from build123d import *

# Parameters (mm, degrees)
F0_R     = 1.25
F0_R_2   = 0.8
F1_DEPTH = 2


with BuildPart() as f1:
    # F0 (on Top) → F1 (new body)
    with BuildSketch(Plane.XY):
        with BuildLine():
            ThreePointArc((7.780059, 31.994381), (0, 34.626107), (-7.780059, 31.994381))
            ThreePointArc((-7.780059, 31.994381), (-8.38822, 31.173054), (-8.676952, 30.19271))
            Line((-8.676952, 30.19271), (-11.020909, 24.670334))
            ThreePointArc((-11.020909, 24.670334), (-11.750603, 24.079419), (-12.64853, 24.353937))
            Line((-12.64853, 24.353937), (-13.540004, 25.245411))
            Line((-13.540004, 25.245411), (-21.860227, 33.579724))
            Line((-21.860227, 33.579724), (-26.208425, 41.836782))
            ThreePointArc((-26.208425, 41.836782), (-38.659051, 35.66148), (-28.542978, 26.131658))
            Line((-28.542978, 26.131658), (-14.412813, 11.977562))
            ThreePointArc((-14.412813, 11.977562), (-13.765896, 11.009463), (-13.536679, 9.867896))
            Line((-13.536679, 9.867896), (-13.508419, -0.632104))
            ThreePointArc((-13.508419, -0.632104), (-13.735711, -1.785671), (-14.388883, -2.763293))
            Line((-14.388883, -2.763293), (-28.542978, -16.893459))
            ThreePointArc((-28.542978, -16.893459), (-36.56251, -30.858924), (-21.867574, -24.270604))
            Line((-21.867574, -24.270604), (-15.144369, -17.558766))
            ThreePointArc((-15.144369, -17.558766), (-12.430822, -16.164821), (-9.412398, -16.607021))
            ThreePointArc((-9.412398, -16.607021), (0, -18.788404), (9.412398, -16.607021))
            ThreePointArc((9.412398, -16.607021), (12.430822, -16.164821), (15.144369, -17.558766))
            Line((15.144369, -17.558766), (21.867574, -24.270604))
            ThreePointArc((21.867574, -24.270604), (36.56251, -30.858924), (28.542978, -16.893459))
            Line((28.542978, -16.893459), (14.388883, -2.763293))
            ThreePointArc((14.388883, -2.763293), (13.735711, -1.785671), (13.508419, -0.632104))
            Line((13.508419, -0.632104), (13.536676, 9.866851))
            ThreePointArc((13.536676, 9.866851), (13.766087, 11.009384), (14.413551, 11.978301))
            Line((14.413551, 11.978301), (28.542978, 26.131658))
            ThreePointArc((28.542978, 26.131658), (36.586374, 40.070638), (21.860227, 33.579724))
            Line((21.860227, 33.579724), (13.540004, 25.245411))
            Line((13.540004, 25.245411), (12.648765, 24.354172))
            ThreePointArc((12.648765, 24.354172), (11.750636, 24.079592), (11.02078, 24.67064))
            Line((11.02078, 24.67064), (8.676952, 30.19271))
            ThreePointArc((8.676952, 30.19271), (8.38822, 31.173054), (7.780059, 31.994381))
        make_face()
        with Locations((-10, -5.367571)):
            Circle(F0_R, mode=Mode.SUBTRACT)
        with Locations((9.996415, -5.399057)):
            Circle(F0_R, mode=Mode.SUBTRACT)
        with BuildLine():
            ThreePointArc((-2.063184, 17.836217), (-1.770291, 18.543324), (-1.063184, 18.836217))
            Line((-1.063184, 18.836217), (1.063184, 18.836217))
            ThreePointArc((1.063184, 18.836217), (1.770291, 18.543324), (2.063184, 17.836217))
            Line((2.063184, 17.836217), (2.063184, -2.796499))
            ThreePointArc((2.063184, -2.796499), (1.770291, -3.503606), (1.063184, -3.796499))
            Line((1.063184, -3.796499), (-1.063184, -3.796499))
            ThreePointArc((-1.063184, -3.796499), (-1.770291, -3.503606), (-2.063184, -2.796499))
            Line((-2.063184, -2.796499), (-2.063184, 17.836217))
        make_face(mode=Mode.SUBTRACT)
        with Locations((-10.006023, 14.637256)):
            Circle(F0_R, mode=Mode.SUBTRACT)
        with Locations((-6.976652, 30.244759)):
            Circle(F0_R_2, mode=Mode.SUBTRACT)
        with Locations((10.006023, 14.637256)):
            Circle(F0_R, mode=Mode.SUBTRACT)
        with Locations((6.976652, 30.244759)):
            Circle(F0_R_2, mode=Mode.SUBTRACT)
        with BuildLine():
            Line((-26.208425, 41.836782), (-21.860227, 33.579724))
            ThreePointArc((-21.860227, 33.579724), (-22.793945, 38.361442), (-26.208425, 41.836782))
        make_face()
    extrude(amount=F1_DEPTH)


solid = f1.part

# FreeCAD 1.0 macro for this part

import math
import FreeCAD as App
import Part
import Sketcher

V = App.Vector
Q = App.Units.Quantity

doc = App.newDocument("Part")
body = doc.addObject("PartDesign::Body", "Body")

# Sketch on XY plane
sketch1 = doc.addObject("Sketcher::SketchObject", "Sketch")
body.addObject(sketch1)
sketch1.AttachmentSupport = (doc.XY_Plane, [""])
sketch1.MapMode = "FlatFace"
sketch1.addGeometry(Part.ArcOfCircle(Part.Circle(V(0, 21.8, 0), V(0, 0, 1), 12.8), math.radians(53), math.radians(127)), False)
sketch1.addGeometry(Part.ArcOfCircle(Part.Circle(V(-5.8, 29.9, 0), V(0, 0, 1), 2.9), math.radians(133), math.radians(174)), False)
sketch1.addGeometry(Part.LineSegment(V(-8.7, 30.2, 0), V(-11, 24.7, 0)), False)
sketch1.addGeometry(Part.ArcOfCircle(Part.Circle(V(-11.9, 25.1, 0), V(0, 0, 1), 1), math.radians(-135), math.radians(-23)), False)
sketch1.addGeometry(Part.LineSegment(V(-12.6, 24.4, 0), V(-13.5, 25.2, 0)), False)
sketch1.addGeometry(Part.LineSegment(V(-13.5, 25.2, 0), V(-21.9, 33.6, 0)), False)
sketch1.addGeometry(Part.ArcOfCircle(Part.Circle(V(-30.3, 34.4, 0), V(0, 0, 1), 8.5), math.radians(-6), math.radians(61)), False)
sketch1.addGeometry(Part.ArcOfCircle(Part.Circle(V(-30.3, 34.4, 0), V(0, 0, 1), 8.5), math.radians(61), math.radians(282)), False)
sketch1.addGeometry(Part.LineSegment(V(-28.5, 26.1, 0), V(-14.4, 12, 0)), False)
sketch1.addGeometry(Part.ArcOfCircle(Part.Circle(V(-16.5, 9.9, 0), V(0, 0, 1), 3), math.radians(0), math.radians(45)), False)
sketch1.addGeometry(Part.LineSegment(V(-13.5, 9.9, 0), V(-13.5, -0.6, 0)), False)
sketch1.addGeometry(Part.ArcOfCircle(Part.Circle(V(-16.5, -0.6, 0), V(0, 0, 1), 3), math.radians(-45), math.radians(0)), False)
sketch1.addGeometry(Part.LineSegment(V(-14.4, -2.8, 0), V(-28.5, -16.9, 0)), False)
sketch1.addGeometry(Part.ArcOfCircle(Part.Circle(V(-30.3, -25.2, 0), V(0, 0, 1), 8.5), math.radians(78), math.radians(366)), False)
sketch1.addGeometry(Part.LineSegment(V(-21.9, -24.3, 0), V(-15.1, -17.6, 0)), False)
sketch1.addGeometry(Part.ArcOfCircle(Part.Circle(V(-11.6, -21.1, 0), V(0, 0, 1), 5), math.radians(64), math.radians(135)), False)
sketch1.addGeometry(Part.ArcOfCircle(Part.Circle(V(0, 2.6, 0), V(0, 0, 1), 21.4), math.radians(-116), math.radians(-64)), False)
sketch1.addGeometry(Part.ArcOfCircle(Part.Circle(V(11.6, -21.1, 0), V(0, 0, 1), 5), math.radians(45), math.radians(116)), False)
sketch1.addGeometry(Part.LineSegment(V(15.1, -17.6, 0), V(21.9, -24.3, 0)), False)
sketch1.addGeometry(Part.ArcOfCircle(Part.Circle(V(30.3, -25.2, 0), V(0, 0, 1), 8.5), math.radians(174), math.radians(462)), False)
sketch1.addGeometry(Part.LineSegment(V(28.5, -16.9, 0), V(14.4, -2.8, 0)), False)
sketch1.addGeometry(Part.ArcOfCircle(Part.Circle(V(16.5, -0.6, 0), V(0, 0, 1), 3), math.radians(180), math.radians(225)), False)
sketch1.addGeometry(Part.LineSegment(V(13.5, -0.6, 0), V(13.5, 9.9, 0)), False)
sketch1.addGeometry(Part.ArcOfCircle(Part.Circle(V(16.5, 9.9, 0), V(0, 0, 1), 3), math.radians(135), math.radians(180)), False)
sketch1.addGeometry(Part.LineSegment(V(14.4, 12, 0), V(28.5, 26.1, 0)), False)
sketch1.addGeometry(Part.ArcOfCircle(Part.Circle(V(30.3, 34.4, 0), V(0, 0, 1), 8.5), math.radians(-102), math.radians(186)), False)
sketch1.addGeometry(Part.LineSegment(V(21.9, 33.6, 0), V(13.5, 25.2, 0)), False)
sketch1.addGeometry(Part.LineSegment(V(13.5, 25.2, 0), V(12.6, 24.4, 0)), False)
sketch1.addGeometry(Part.ArcOfCircle(Part.Circle(V(11.9, 25.1, 0), V(0, 0, 1), 1), math.radians(-157), math.radians(-45)), False)
sketch1.addGeometry(Part.LineSegment(V(11, 24.7, 0), V(8.7, 30.2, 0)), False)
sketch1.addGeometry(Part.ArcOfCircle(Part.Circle(V(5.8, 29.9, 0), V(0, 0, 1), 2.9), math.radians(6), math.radians(47)), False)
sketch1.addGeometry(Part.Circle(V(-10, -5.4, 0), V(0, 0, 1), 1.2), False)
sketch1.addGeometry(Part.Circle(V(10, -5.4, 0), V(0, 0, 1), 1.2), False)
sketch1.addGeometry(Part.LineSegment(V(-2.1, -2.8, 0), V(-2.1, 17.8, 0)), False)
sketch1.addGeometry(Part.ArcOfCircle(Part.Circle(V(-1.1, 17.8, 0), V(0, 0, 1), 1), math.radians(90), math.radians(180)), False)
sketch1.addGeometry(Part.LineSegment(V(-1.1, 18.8, 0), V(1.1, 18.8, 0)), False)
sketch1.addGeometry(Part.ArcOfCircle(Part.Circle(V(1.1, 17.8, 0), V(0, 0, 1), 1), math.radians(0), math.radians(90)), False)
sketch1.addGeometry(Part.LineSegment(V(2.1, 17.8, 0), V(2.1, -2.8, 0)), False)
sketch1.addGeometry(Part.ArcOfCircle(Part.Circle(V(1.1, -2.8, 0), V(0, 0, 1), 1), math.radians(-90), math.radians(0)), False)
sketch1.addGeometry(Part.LineSegment(V(1.1, -3.8, 0), V(-1.1, -3.8, 0)), False)
sketch1.addGeometry(Part.ArcOfCircle(Part.Circle(V(-1.1, -2.8, 0), V(0, 0, 1), 1), math.radians(180), math.radians(270)), False)
sketch1.addGeometry(Part.Circle(V(-10, 14.6, 0), V(0, 0, 1), 1.2), False)
sketch1.addGeometry(Part.Circle(V(-7, 30.2, 0), V(0, 0, 1), 0.8), False)
sketch1.addGeometry(Part.Circle(V(10, 14.6, 0), V(0, 0, 1), 1.2), False)
sketch1.addGeometry(Part.Circle(V(7, 30.2, 0), V(0, 0, 1), 0.8), False)
sketch1.addConstraint(Sketcher.Constraint("Coincident", 0, 2, 1, 1))
sketch1.addConstraint(Sketcher.Constraint("Coincident", 1, 2, 2, 1))
sketch1.addConstraint(Sketcher.Constraint("Tangent", 2, 2, 3, 2))
sketch1.addConstraint(Sketcher.Constraint("Tangent", 3, 1, 4, 1))
sketch1.addConstraint(Sketcher.Constraint("Coincident", 4, 2, 5, 1))
sketch1.addConstraint(Sketcher.Constraint("Coincident", 5, 2, 6, 1))
sketch1.addConstraint(Sketcher.Constraint("Tangent", 6, 2, 7, 1))
sketch1.addConstraint(Sketcher.Constraint("Coincident", 7, 2, 8, 1))
sketch1.addConstraint(Sketcher.Constraint("Tangent", 8, 2, 9, 2))
sketch1.addConstraint(Sketcher.Constraint("Tangent", 9, 1, 10, 1))
sketch1.addConstraint(Sketcher.Constraint("Tangent", 10, 2, 11, 2))
sketch1.addConstraint(Sketcher.Constraint("Tangent", 11, 1, 12, 1))
sketch1.addConstraint(Sketcher.Constraint("Coincident", 12, 2, 13, 1))
sketch1.addConstraint(Sketcher.Constraint("Coincident", 13, 2, 14, 1))
sketch1.addConstraint(Sketcher.Constraint("Tangent", 14, 2, 15, 2))
sketch1.addConstraint(Sketcher.Constraint("Tangent", 15, 1, 16, 1))
sketch1.addConstraint(Sketcher.Constraint("Tangent", 16, 2, 17, 2))
sketch1.addConstraint(Sketcher.Constraint("Tangent", 17, 1, 18, 1))
sketch1.addConstraint(Sketcher.Constraint("Coincident", 18, 2, 19, 1))
sketch1.addConstraint(Sketcher.Constraint("Coincident", 19, 2, 20, 1))
sketch1.addConstraint(Sketcher.Constraint("Tangent", 20, 2, 21, 2))
sketch1.addConstraint(Sketcher.Constraint("Tangent", 21, 1, 22, 1))
sketch1.addConstraint(Sketcher.Constraint("Tangent", 22, 2, 23, 2))
sketch1.addConstraint(Sketcher.Constraint("Tangent", 23, 1, 24, 1))
sketch1.addConstraint(Sketcher.Constraint("Coincident", 24, 2, 25, 1))
sketch1.addConstraint(Sketcher.Constraint("Coincident", 25, 2, 26, 1))
sketch1.addConstraint(Sketcher.Constraint("Coincident", 26, 2, 27, 1))
sketch1.addConstraint(Sketcher.Constraint("Tangent", 27, 2, 28, 2))
sketch1.addConstraint(Sketcher.Constraint("Tangent", 28, 1, 29, 1))
sketch1.addConstraint(Sketcher.Constraint("Coincident", 29, 2, 30, 1))
sketch1.addConstraint(Sketcher.Constraint("Coincident", 30, 2, 0, 1))
sketch1.addConstraint(Sketcher.Constraint("Tangent", 33, 2, 34, 2))
sketch1.addConstraint(Sketcher.Constraint("Tangent", 34, 1, 35, 1))
sketch1.addConstraint(Sketcher.Constraint("Tangent", 35, 2, 36, 2))
sketch1.addConstraint(Sketcher.Constraint("Tangent", 36, 1, 37, 1))
sketch1.addConstraint(Sketcher.Constraint("Tangent", 37, 2, 38, 2))
sketch1.addConstraint(Sketcher.Constraint("Tangent", 38, 1, 39, 1))
sketch1.addConstraint(Sketcher.Constraint("Tangent", 39, 2, 40, 2))
sketch1.addConstraint(Sketcher.Constraint("Tangent", 40, 1, 33, 1))
sketch1.addConstraint(Sketcher.Constraint("Vertical", 33))
sketch1.addConstraint(Sketcher.Constraint("Horizontal", 35))
sketch1.addConstraint(Sketcher.Constraint("Vertical", 37))
sketch1.addConstraint(Sketcher.Constraint("Horizontal", 39))
sketch1.addConstraint(Sketcher.Constraint("Equal", 6, 7))
sketch1.addConstraint(Sketcher.Constraint("Equal", 7, 13))
sketch1.addConstraint(Sketcher.Constraint("Equal", 15, 17))
sketch1.addConstraint(Sketcher.Constraint("Equal", 13, 19))
sketch1.addConstraint(Sketcher.Constraint("Equal", 11, 21))
sketch1.addConstraint(Sketcher.Constraint("Equal", 21, 23))
sketch1.addConstraint(Sketcher.Constraint("Equal", 19, 25))
sketch1.addConstraint(Sketcher.Constraint("Equal", 1, 30))
sketch1.addConstraint(Sketcher.Constraint("Equal", 31, 32))
sketch1.addConstraint(Sketcher.Constraint("Equal", 3, 34))
sketch1.addConstraint(Sketcher.Constraint("Equal", 34, 36))
sketch1.addConstraint(Sketcher.Constraint("Equal", 36, 38))
sketch1.addConstraint(Sketcher.Constraint("Equal", 38, 40))
sketch1.addConstraint(Sketcher.Constraint("Equal", 32, 41))
sketch1.addConstraint(Sketcher.Constraint("Equal", 41, 43))
sketch1.addConstraint(Sketcher.Constraint("Equal", 42, 44))
sketch1.addConstraint(Sketcher.Constraint("Symmetric", 15, 3, 17, 3, -2))
sketch1.addConstraint(Sketcher.Constraint("Symmetric", 13, 3, 19, 3, -2))
sketch1.addConstraint(Sketcher.Constraint("Symmetric", 11, 3, 21, 3, -2))
sketch1.addConstraint(Sketcher.Constraint("Symmetric", 6, 3, 25, 3, -2))
sketch1.addConstraint(Sketcher.Constraint("Symmetric", 1, 3, 30, 3, -2))
sketch1.addConstraint(Sketcher.Constraint("Symmetric", 41, 3, 43, 3, -2))
sketch1.addConstraint(Sketcher.Constraint("Symmetric", 42, 3, 44, 3, -2))
sketch1.addConstraint(Sketcher.Constraint("Symmetric", 4, 2, 26, 2, -2))
sketch1.addConstraint(Sketcher.Constraint("PointOnObject", 0, 3, -2))
sketch1.addConstraint(Sketcher.Constraint("Parallel", 5, 8))
sketch1.addConstraint(Sketcher.Constraint("Perpendicular", 8, 12))
sketch1.addConstraint(Sketcher.Constraint("Parallel", 12, 14))
sketch1.addConstraint(Sketcher.Constraint("Parallel", 18, 20))
sketch1.addConstraint(Sketcher.Constraint("Perpendicular", 20, 24))
sketch1.addConstraint(Sketcher.Constraint("Parallel", 24, 26))
sketch1.addConstraint(Sketcher.Constraint("Perpendicular", 4, 27))
sketch1.addConstraint(Sketcher.Constraint("Horizontal", 14, 2, 17, 1))
sketch1.addConstraint(Sketcher.Constraint("Horizontal", 10, 2, 21, 1))
sketch1.addConstraint(Sketcher.Constraint("Horizontal", 7, 2, 24, 2))
sketch1.addConstraint(Sketcher.Constraint("Horizontal", 1, 2, 29, 2))
sketch1.addConstraint(Sketcher.Constraint("Vertical", 7, 3, 13, 3))
sketch1.addConstraint(Sketcher.Constraint("Vertical", 7, 2, 12, 2))
sketch1.addConstraint(Sketcher.Constraint("Equal", 8, 12))
sketch1.addConstraint(Sketcher.Constraint("Radius", 3, 1.000001))
sketch1.addConstraint(Sketcher.Constraint("Radius", 15, 5.000001))
sketch1.addConstraint(Sketcher.Constraint("Diameter", 31, 2.5))
sketch1.addConstraint(Sketcher.Constraint("Diameter", 42, 1.6))
sketch1.addConstraint(Sketcher.Constraint("Angle", 4, Q("135 deg")))
sketch1.addConstraint(Sketcher.Constraint("Distance", 8, 20.0))
sketch1.addConstraint(Sketcher.Constraint("DistanceX", 31, 3, -1, 1, 10.0))
sketch1.addConstraint(Sketcher.Constraint("Radius", 0, 12.815791))
sketch1.addConstraint(Sketcher.Constraint("Radius", 16, 21.397358))
sketch1.addConstraint(Sketcher.Constraint("Radius", 1, 2.927067))
sketch1.addConstraint(Sketcher.Constraint("Radius", 6, 8.466153))
sketch1.addConstraint(Sketcher.Constraint("Radius", 9, 2.997463))
sketch1.addConstraint(Sketcher.Constraint("Radius", 11, 2.999997))
sketch1.addConstraint(Sketcher.Constraint("Radius", 28, 1.000223))
sketch1.addConstraint(Sketcher.Constraint("Distance", 29, 5.998899))
sketch1.addConstraint(Sketcher.Constraint("DistanceX", -1, 1, 28, 3, 11.9415))
sketch1.addConstraint(Sketcher.Constraint("DistanceY", 38, 3, -1, 1, 2.7965))
sketch1.addConstraint(Sketcher.Constraint("DistanceX", 15, 1, -1, 1, 9.412398))
sketch1.addConstraint(Sketcher.Constraint("DistanceY", -1, 1, 23, 1, 11.978301))
sketch1.addConstraint(Sketcher.Constraint("Distance", 2, 5.999231))
sketch1.addConstraint(Sketcher.Constraint("Distance", 5, 11.77654))
sketch1.addConstraint(Sketcher.Constraint("Distance", 10, 10.500038))
sketch1.addConstraint(Sketcher.Constraint("DistanceX", 35, 1, 35, 2, 2.126368))
sketch1.addConstraint(Sketcher.Constraint("DistanceY", 33, 1, 33, 2, 20.632716))
sketch1.addConstraint(Sketcher.Constraint("DistanceY", -1, 1, 1, 3, 29.868618))
sketch1.addConstraint(Sketcher.Constraint("DistanceX", 6, 3, -1, 1, 30.284909))
sketch1.addConstraint(Sketcher.Constraint("DistanceY", -1, 1, 7, 3, 34.416671))
sketch1.addConstraint(Sketcher.Constraint("DistanceX", 9, 3, -1, 1, 16.534131))
sketch1.addConstraint(Sketcher.Constraint("DistanceY", 15, 3, -1, 1, 21.097291))
sketch1.addConstraint(Sketcher.Constraint("DistanceY", 31, 3, -1, 1, 5.367571))
sketch1.addConstraint(Sketcher.Constraint("DistanceX", 42, 3, -1, 1, 6.976652))
sketch1.addConstraint(Sketcher.Constraint("DistanceY", -1, 1, 42, 3, 30.244759))
sketch1.addConstraint(Sketcher.Constraint("DistanceX", 0, 2, -1, 1, 7.780059))
sketch1.addConstraint(Sketcher.Constraint("DistanceY", -1, 1, 0, 2, 31.994381))
sketch1.addConstraint(Sketcher.Constraint("DistanceX", 1, 2, -1, 1, 8.676952))
sketch1.addConstraint(Sketcher.Constraint("DistanceY", -1, 1, 6, 2, 41.836782))
sketch1.addConstraint(Sketcher.Constraint("DistanceX", -1, 1, 32, 3, 9.996415))
sketch1.addConstraint(Sketcher.Constraint("DistanceY", 32, 3, -1, 1, 5.399057))
sketch1.addConstraint(Sketcher.Constraint("DistanceX", 34, 3, -1, 1, 1.063185))
sketch1.addConstraint(Sketcher.Constraint("DistanceX", 41, 3, -1, 1, 10.006023))
sketch1.addConstraint(Sketcher.Constraint("DistanceY", -1, 1, 41, 3, 14.637256))
pad1 = doc.addObject("PartDesign::Pad", "Pad")
body.addObject(pad1)
pad1.Profile = sketch1
pad1.Length = 2

doc.recompute()
